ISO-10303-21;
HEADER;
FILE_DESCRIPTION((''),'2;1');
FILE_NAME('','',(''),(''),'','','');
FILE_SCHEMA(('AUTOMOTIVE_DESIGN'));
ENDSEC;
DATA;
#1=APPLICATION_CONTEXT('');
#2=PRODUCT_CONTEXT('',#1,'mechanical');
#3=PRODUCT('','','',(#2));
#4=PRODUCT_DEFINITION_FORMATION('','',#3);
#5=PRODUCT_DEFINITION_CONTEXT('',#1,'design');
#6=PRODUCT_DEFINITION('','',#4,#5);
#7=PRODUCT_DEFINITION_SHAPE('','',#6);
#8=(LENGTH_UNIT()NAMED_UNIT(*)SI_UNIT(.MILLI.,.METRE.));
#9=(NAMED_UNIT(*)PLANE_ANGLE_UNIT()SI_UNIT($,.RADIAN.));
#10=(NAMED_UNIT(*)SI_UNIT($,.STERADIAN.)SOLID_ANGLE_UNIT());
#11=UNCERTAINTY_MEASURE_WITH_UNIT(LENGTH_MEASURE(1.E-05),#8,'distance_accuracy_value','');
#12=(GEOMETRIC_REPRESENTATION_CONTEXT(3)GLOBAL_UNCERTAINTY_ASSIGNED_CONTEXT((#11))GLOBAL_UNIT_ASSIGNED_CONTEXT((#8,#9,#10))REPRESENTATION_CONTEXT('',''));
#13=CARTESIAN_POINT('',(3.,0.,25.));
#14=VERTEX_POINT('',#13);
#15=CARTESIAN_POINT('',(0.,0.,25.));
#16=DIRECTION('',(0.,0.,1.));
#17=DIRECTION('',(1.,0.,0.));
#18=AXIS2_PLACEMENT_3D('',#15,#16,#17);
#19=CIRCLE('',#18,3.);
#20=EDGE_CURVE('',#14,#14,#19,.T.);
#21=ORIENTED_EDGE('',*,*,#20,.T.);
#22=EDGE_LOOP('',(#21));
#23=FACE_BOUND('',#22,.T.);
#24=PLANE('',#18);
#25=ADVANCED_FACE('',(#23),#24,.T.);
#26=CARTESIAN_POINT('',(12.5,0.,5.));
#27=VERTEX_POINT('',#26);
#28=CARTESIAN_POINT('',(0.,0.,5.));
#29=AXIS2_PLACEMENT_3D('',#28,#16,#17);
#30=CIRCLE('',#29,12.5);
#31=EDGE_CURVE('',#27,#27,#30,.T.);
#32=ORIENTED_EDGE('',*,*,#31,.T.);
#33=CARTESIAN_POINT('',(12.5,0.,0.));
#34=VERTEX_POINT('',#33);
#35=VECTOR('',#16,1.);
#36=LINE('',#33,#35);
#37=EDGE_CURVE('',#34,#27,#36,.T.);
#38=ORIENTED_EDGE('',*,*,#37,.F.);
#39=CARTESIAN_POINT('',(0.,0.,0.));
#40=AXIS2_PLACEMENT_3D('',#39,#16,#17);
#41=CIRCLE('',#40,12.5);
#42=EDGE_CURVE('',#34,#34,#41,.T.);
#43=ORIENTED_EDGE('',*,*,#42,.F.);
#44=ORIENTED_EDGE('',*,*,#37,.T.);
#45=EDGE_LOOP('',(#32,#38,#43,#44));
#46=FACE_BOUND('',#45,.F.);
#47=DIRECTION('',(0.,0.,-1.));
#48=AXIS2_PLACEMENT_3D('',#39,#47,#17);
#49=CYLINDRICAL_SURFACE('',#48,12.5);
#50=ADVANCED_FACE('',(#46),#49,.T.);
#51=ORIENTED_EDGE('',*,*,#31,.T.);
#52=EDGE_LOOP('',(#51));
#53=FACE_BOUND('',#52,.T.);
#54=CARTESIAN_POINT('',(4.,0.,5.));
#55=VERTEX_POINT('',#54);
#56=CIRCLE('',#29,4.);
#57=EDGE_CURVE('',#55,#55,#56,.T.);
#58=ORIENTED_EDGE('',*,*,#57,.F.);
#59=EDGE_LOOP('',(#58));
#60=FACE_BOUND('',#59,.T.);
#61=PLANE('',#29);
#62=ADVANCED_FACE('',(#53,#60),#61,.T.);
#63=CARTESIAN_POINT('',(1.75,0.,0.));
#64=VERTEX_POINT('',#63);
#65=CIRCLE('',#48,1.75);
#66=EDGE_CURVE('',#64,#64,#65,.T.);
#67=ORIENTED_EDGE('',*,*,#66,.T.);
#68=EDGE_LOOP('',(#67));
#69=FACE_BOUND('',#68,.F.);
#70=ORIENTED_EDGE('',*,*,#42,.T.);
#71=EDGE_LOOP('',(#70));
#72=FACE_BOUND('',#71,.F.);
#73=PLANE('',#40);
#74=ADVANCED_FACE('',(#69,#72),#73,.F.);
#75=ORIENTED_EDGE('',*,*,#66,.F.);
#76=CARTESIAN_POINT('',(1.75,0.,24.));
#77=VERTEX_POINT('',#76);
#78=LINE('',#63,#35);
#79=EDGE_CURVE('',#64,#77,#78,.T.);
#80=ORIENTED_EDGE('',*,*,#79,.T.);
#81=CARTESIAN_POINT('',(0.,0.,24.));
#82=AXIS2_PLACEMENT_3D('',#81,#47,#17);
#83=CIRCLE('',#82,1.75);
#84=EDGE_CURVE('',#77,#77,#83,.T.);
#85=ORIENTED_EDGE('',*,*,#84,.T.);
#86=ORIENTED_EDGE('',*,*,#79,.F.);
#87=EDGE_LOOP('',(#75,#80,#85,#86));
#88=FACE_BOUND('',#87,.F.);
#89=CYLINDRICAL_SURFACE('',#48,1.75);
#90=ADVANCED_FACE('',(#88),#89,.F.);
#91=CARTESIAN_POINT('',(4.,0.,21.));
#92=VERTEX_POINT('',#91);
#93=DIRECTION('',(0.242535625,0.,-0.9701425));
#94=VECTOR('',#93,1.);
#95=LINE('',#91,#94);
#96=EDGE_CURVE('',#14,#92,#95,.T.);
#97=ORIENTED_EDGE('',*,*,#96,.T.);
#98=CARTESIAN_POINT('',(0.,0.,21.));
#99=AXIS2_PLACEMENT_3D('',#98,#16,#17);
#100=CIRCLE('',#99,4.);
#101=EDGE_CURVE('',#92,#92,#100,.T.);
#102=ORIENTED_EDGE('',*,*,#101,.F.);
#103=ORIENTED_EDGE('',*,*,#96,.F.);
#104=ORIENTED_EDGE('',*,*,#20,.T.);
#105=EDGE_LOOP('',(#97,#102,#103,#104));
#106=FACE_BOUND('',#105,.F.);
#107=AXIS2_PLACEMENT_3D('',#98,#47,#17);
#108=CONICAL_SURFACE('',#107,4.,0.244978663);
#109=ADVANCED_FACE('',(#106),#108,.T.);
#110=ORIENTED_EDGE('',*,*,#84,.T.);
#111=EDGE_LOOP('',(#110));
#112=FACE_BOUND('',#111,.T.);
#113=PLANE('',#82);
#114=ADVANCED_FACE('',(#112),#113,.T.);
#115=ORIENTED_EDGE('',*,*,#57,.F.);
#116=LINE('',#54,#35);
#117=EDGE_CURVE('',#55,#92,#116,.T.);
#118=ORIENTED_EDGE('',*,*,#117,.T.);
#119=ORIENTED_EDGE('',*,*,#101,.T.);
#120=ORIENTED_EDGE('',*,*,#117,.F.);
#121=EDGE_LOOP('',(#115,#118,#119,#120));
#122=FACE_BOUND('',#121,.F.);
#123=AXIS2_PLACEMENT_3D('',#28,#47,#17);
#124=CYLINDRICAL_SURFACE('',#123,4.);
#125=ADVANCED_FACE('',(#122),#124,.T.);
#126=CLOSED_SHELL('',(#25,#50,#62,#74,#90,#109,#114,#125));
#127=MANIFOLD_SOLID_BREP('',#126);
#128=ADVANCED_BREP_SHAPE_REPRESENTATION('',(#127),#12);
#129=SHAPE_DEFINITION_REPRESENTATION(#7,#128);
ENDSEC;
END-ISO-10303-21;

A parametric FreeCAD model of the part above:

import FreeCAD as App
import Part
import Sketcher
Q = App.Units.Quantity


def edges_at(feature, points):
    """Names of the edges that pass closest to the given points."""
    edges = feature.Shape.Edges
    near = lambda p: min(range(len(edges)), key=lambda i: edges[i].distToShape(Part.Vertex(*p))[0])
    return sorted({f"Edge{near(p) + 1}" for p in points})

doc = App.newDocument("Part")
body = doc.addObject("PartDesign::Body", "Body")

sketch1 = body.newObject("Sketcher::SketchObject", "Sketch")
sketch1.AttachmentSupport = (doc.getObject("XY_Plane"), [""])
sketch1.MapMode = "FlatFace"
sketch1.addGeometry(Part.Circle(App.Vector(0, 0, 0), App.Vector(0, 0, 1), 12.5), False)
sketch1.addConstraint([
    Sketcher.Constraint("Coincident", 0, 3, -1, 1),
    Sketcher.Constraint("Diameter", 0, Q("25 mm")),
])
pad1 = body.newObject("PartDesign::Pad", "Pad")
pad1.Profile = sketch1
pad1.Length = 5

sketch2 = body.newObject("Sketcher::SketchObject", "Sketch001")
sketch2.AttachmentSupport = (doc.getObject("XY_Plane"), [""])
sketch2.MapMode = "FlatFace"
sketch2.AttachmentOffset = App.Placement(App.Vector(0, 0, 5), App.Rotation())
sketch2.addGeometry(Part.Circle(App.Vector(0, 0, 0), App.Vector(0, 0, 1), 4), False)
sketch2.addConstraint([
    Sketcher.Constraint("Coincident", 0, 3, -1, 1),
    Sketcher.Constraint("Diameter", 0, Q("8 mm")),
])
pad2 = body.newObject("PartDesign::Pad", "Pad001")
pad2.Profile = sketch2
pad2.Length = 20
doc.recompute()

chamfer = body.newObject("PartDesign::Chamfer", "Chamfer")
chamfer.Base = (pad2, edges_at(pad2, [(-4, 0, 25)]))
chamfer.ChamferType = "Two distances"
chamfer.Size = 1
chamfer.Size2 = 4
chamfer.FlipDirection = True

sketch3 = body.newObject("Sketcher::SketchObject", "Sketch002")
sketch3.AttachmentSupport = (doc.getObject("XY_Plane"), [""])
sketch3.MapMode = "FlatFace"
sketch3.addGeometry(Part.Circle(App.Vector(0, 0, 0), App.Vector(0, 0, 1), 1.75), False)
sketch3.addConstraint([
    Sketcher.Constraint("Coincident", 0, 3, -1, 1),
    Sketcher.Constraint("Diameter", 0, Q("3.5 mm")),
])
pocket1 = body.newObject("PartDesign::Pocket", "Pocket")
pocket1.Profile = sketch3
pocket1.Length = 24
pocket1.Reversed = True

doc.recompute()
